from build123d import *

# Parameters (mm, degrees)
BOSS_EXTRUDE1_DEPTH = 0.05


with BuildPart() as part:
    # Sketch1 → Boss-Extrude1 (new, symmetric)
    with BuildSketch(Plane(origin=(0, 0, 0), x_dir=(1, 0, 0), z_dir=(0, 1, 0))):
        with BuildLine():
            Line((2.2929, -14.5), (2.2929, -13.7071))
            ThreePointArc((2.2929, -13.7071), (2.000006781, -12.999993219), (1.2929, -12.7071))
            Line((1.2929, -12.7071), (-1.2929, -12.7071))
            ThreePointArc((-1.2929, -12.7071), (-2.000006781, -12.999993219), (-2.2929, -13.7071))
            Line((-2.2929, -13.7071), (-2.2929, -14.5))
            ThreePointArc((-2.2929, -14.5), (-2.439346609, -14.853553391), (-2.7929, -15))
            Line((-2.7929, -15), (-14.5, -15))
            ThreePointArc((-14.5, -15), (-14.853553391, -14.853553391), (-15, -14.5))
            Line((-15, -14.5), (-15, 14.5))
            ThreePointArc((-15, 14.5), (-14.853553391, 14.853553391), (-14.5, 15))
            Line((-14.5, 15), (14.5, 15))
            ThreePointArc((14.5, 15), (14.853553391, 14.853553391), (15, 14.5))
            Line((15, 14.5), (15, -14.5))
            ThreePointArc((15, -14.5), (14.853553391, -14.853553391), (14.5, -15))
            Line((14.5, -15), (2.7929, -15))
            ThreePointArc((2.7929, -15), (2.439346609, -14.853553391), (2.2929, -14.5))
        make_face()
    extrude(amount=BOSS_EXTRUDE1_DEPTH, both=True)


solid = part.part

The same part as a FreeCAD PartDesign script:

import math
import FreeCAD as App
import Part
import Sketcher

doc = App.newDocument("Part")
params = doc.addObject("Spreadsheet::Sheet", "Params")
for row, (alias, value) in enumerate([
    ("sketch1_radius", "1 mm"),
    ("sketch1_radius2", "0.5 mm"),
    ("sketch1_width", "29 mm"),
    ("pad1_length", "0.1 mm"),
], start=1):
    params.set(f"A{row}", alias)
    params.set(f"B{row}", "=" + value)
    params.setAlias(f"B{row}", alias)

body = doc.addObject("PartDesign::Body", "Body")

# Sketch on XZ plane
sketch1 = body.newObject("Sketcher::SketchObject", "Sketch")
sketch1.AttachmentSupport = (doc.getObject("XZ_Plane"), [""])
sketch1.MapMode = "FlatFace"
sketch1.addGeometry([
    Part.LineSegment(App.Vector(2.29, 13.71, 0), App.Vector(2.29, 14.5, 0)),  # 0
    Part.ArcOfCircle(Part.Circle(App.Vector(2.79, 14.5, 0), App.Vector(0, 0, 1), 0.5), math.radians(90), math.radians(180)),  # 1
    Part.LineSegment(App.Vector(2.79, 15, 0), App.Vector(14.5, 15, 0)),  # 2
    Part.ArcOfCircle(Part.Circle(App.Vector(14.5, 14.5, 0), App.Vector(0, 0, 1), 0.5), math.radians(0), math.radians(90)),  # 3
    Part.LineSegment(App.Vector(15, 14.5, 0), App.Vector(15, -14.5, 0)),  # 4
    Part.ArcOfCircle(Part.Circle(App.Vector(14.5, -14.5, 0), App.Vector(0, 0, 1), 0.5), math.radians(-90), math.radians(0)),  # 5
    Part.LineSegment(App.Vector(14.5, -15, 0), App.Vector(-14.5, -15, 0)),  # 6
    Part.ArcOfCircle(Part.Circle(App.Vector(-14.5, -14.5, 0), App.Vector(0, 0, 1), 0.5), math.radians(180), math.radians(270)),  # 7
    Part.LineSegment(App.Vector(-15, -14.5, 0), App.Vector(-15, 14.5, 0)),  # 8
    Part.ArcOfCircle(Part.Circle(App.Vector(-14.5, 14.5, 0), App.Vector(0, 0, 1), 0.5), math.radians(90), math.radians(180)),  # 9
    Part.LineSegment(App.Vector(-14.5, 15, 0), App.Vector(-2.79, 15, 0)),  # 10
    Part.ArcOfCircle(Part.Circle(App.Vector(-2.79, 14.5, 0), App.Vector(0, 0, 1), 0.5), math.radians(0), math.radians(90)),  # 11
    Part.LineSegment(App.Vector(-2.29, 14.5, 0), App.Vector(-2.29, 13.71, 0)),  # 12
    Part.ArcOfCircle(Part.Circle(App.Vector(-1.29, 13.71, 0), App.Vector(0, 0, 1), 1), math.radians(-180), math.radians(-90)),  # 13
    Part.LineSegment(App.Vector(-1.29, 12.71, 0), App.Vector(1.29, 12.71, 0)),  # 14
    Part.ArcOfCircle(Part.Circle(App.Vector(1.29, 13.71, 0), App.Vector(0, 0, 1), 1), math.radians(-90), math.radians(0)),  # 15
], False)
sketch1.addConstraint([
    Sketcher.Constraint("Tangent", 0, 2, 1, 2),
    Sketcher.Constraint("Tangent", 1, 1, 2, 1),
    Sketcher.Constraint("Tangent", 2, 2, 3, 2),
    Sketcher.Constraint("Tangent", 3, 1, 4, 1),
    Sketcher.Constraint("Tangent", 4, 2, 5, 2),
    Sketcher.Constraint("Tangent", 5, 1, 6, 1),
    Sketcher.Constraint("Tangent", 6, 2, 7, 2),
    Sketcher.Constraint("Tangent", 7, 1, 8, 1),
    Sketcher.Constraint("Tangent", 8, 2, 9, 2),
    Sketcher.Constraint("Tangent", 9, 1, 10, 1),
    Sketcher.Constraint("Tangent", 10, 2, 11, 2),
    Sketcher.Constraint("Tangent", 11, 1, 12, 1),
    Sketcher.Constraint("Tangent", 12, 2, 13, 1),
    Sketcher.Constraint("Tangent", 13, 2, 14, 1),
    Sketcher.Constraint("Tangent", 14, 2, 15, 1),
    Sketcher.Constraint("Tangent", 15, 2, 0, 1),
    Sketcher.Constraint("Vertical", 0),
    Sketcher.Constraint("Horizontal", 2),
    Sketcher.Constraint("Vertical", 4),
    Sketcher.Constraint("Horizontal", 6),
    Sketcher.Constraint("Vertical", 8),
    Sketcher.Constraint("Horizontal", 10),
    Sketcher.Constraint("Vertical", 12),
    Sketcher.Constraint("Horizontal", 14),
    Sketcher.Constraint("Equal", 1, 3),
    Sketcher.Constraint("Equal", 3, 5),
    Sketcher.Constraint("Equal", 5, 7),
    Sketcher.Constraint("Equal", 7, 9),
    Sketcher.Constraint("Equal", 9, 11),
    Sketcher.Constraint("Equal", 13, 15),
    Sketcher.Constraint("Symmetric", 3, 3, 7, 3, -1, 1),
    Sketcher.Constraint("Symmetric", 1, 3, 11, 3, -2),
    Sketcher.Constraint("Equal", 6, 4),
    Sketcher.Constraint("Radius", 13, 1.0),
    Sketcher.Constraint("Radius", 1, 0.5),
    Sketcher.Constraint("DistanceX", 6, 2, 6, 1, 29.0),
    Sketcher.Constraint("DistanceX", 2, 1, 2, 2, 11.7071),
    Sketcher.Constraint("DistanceY", 0, 1, 0, 2, 0.7929),
])
sketch1.setExpression("Constraints[33]", "Params.sketch1_radius")
sketch1.setExpression("Constraints[34]", "Params.sketch1_radius2")
sketch1.setExpression("Constraints[35]", "Params.sketch1_width")
pad1 = body.newObject("PartDesign::Pad", "Pad")
pad1.Profile = sketch1
pad1.setExpression("Length", "Params.pad1_length")
pad1.Midplane = True

doc.recompute()
